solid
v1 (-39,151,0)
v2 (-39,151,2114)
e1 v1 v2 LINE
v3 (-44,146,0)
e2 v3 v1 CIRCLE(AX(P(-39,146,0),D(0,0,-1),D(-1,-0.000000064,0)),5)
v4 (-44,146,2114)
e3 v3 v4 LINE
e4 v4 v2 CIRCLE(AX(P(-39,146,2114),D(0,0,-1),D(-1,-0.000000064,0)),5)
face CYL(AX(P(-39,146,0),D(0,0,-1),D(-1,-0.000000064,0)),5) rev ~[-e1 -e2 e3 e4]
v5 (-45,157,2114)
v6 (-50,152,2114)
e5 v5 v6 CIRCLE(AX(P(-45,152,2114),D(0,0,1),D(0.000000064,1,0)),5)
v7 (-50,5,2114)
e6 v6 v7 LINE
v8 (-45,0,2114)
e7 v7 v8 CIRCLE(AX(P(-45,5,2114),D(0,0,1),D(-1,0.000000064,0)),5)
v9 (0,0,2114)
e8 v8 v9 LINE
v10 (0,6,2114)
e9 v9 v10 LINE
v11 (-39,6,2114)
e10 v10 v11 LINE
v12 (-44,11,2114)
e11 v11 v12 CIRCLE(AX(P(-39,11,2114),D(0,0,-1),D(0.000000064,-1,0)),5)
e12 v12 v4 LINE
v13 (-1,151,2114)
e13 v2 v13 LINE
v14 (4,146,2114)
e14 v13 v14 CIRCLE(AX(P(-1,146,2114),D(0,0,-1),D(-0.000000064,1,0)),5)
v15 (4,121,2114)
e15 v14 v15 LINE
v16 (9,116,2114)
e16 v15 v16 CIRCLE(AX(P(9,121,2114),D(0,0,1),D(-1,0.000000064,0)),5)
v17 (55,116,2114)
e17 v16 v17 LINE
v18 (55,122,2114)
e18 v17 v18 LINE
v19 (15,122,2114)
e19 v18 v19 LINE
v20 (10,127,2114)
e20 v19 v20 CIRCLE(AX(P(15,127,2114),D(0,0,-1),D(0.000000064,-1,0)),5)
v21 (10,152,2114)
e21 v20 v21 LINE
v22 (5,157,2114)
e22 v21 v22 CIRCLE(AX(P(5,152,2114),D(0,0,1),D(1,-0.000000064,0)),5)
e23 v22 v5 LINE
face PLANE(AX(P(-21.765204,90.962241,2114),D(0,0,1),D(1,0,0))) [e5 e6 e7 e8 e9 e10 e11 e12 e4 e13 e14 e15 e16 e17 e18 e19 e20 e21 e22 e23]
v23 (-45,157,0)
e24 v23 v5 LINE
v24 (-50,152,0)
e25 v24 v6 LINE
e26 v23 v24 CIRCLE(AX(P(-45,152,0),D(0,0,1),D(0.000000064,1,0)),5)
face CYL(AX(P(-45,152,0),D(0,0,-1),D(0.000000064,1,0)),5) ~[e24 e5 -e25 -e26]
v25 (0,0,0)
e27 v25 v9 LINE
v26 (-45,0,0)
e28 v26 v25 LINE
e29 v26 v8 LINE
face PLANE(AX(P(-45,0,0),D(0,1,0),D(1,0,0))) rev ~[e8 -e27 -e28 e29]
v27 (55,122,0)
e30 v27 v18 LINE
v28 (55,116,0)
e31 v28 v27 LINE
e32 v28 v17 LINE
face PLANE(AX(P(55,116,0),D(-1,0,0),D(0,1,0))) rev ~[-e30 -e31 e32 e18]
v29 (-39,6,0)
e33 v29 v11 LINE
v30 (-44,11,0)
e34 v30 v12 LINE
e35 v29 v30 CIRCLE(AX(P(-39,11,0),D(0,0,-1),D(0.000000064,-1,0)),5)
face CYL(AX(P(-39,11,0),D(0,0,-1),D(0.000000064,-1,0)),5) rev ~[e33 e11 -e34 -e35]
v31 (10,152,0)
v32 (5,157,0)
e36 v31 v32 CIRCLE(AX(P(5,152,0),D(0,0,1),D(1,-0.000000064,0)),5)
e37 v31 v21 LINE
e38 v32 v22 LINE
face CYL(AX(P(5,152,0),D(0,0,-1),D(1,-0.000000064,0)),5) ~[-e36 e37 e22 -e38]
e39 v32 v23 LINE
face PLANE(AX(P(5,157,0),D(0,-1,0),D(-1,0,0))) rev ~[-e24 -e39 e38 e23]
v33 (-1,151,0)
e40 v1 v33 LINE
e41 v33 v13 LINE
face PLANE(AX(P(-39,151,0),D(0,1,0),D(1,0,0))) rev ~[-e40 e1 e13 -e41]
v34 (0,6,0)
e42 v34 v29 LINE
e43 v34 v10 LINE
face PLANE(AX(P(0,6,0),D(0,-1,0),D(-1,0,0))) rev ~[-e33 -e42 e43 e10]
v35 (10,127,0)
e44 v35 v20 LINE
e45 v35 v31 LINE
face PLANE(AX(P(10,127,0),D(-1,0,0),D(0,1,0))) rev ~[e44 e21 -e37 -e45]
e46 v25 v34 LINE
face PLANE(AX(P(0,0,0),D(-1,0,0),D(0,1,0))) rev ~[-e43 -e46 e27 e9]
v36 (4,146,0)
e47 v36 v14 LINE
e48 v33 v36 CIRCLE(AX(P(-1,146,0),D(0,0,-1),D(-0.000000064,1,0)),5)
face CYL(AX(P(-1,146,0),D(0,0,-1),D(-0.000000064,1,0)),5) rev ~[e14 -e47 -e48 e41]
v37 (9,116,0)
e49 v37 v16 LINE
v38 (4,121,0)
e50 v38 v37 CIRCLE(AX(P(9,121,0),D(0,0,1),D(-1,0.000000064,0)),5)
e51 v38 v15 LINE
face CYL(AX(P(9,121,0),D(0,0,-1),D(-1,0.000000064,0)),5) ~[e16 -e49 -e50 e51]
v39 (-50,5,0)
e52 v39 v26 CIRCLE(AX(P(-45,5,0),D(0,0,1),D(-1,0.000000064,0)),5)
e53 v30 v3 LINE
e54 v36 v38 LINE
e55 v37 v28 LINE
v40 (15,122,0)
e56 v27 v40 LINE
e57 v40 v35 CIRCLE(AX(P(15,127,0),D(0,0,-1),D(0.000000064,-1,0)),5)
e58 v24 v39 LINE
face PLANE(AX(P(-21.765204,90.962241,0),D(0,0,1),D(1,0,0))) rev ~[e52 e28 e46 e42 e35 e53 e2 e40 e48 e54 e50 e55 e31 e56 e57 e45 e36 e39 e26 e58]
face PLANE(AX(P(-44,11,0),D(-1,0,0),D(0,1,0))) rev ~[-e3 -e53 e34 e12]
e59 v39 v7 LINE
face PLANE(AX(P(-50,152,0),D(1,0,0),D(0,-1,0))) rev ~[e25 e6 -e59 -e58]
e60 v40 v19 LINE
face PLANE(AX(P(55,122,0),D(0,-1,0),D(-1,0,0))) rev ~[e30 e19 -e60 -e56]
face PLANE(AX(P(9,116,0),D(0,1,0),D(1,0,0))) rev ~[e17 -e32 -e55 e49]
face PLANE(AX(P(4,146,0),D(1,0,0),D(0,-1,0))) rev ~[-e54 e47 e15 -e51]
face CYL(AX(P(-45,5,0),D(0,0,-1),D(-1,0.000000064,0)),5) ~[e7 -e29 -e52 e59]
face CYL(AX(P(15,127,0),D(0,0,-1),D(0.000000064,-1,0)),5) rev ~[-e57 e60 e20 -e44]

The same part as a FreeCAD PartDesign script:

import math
import FreeCAD as App
import Part
import Sketcher

V = App.Vector

doc = App.newDocument("Part")
body = doc.addObject("PartDesign::Body", "Body")

# Sketch on XY plane
sketch1 = body.newObject("Sketcher::SketchObject", "Sketch")
sketch1.AttachmentSupport = (doc.getObject("XY_Plane"), [""])
sketch1.MapMode = "FlatFace"
sketch1.addGeometry(Part.LineSegment(V(-45, 0, 0), V(0, 0, 0)), False)
sketch1.addGeometry(Part.LineSegment(V(0, 0, 0), V(0, 6, 0)), False)
sketch1.addGeometry(Part.LineSegment(V(0, 6, 0), V(-39, 6, 0)), False)
sketch1.addGeometry(Part.ArcOfCircle(Part.Circle(V(-39, 11, 0), V(0, 0, 1), 5), math.radians(180), math.radians(270)), False)
sketch1.addGeometry(Part.LineSegment(V(-44, 11, 0), V(-44, 146, 0)), False)
sketch1.addGeometry(Part.ArcOfCircle(Part.Circle(V(-39, 146, 0), V(0, 0, 1), 5), math.radians(90), math.radians(180)), False)
sketch1.addGeometry(Part.LineSegment(V(-39, 151, 0), V(-1, 151, 0)), False)
sketch1.addGeometry(Part.ArcOfCircle(Part.Circle(V(-1, 146, 0), V(0, 0, 1), 5), math.radians(0), math.radians(90)), False)
sketch1.addGeometry(Part.LineSegment(V(4, 146, 0), V(4, 121, 0)), False)
sketch1.addGeometry(Part.ArcOfCircle(Part.Circle(V(9, 121, 0), V(0, 0, 1), 5), math.radians(180), math.radians(270)), False)
sketch1.addGeometry(Part.LineSegment(V(9, 116, 0), V(55, 116, 0)), False)
sketch1.addGeometry(Part.LineSegment(V(55, 116, 0), V(55, 122, 0)), False)
sketch1.addGeometry(Part.LineSegment(V(55, 122, 0), V(15, 122, 0)), False)
sketch1.addGeometry(Part.ArcOfCircle(Part.Circle(V(15, 127, 0), V(0, 0, 1), 5), math.radians(180), math.radians(270)), False)
sketch1.addGeometry(Part.LineSegment(V(10, 127, 0), V(10, 152, 0)), False)
sketch1.addGeometry(Part.ArcOfCircle(Part.Circle(V(5, 152, 0), V(0, 0, 1), 5), math.radians(0), math.radians(90)), False)
sketch1.addGeometry(Part.LineSegment(V(5, 157, 0), V(-45, 157, 0)), False)
sketch1.addGeometry(Part.ArcOfCircle(Part.Circle(V(-45, 152, 0), V(0, 0, 1), 5), math.radians(90), math.radians(180)), False)
sketch1.addGeometry(Part.LineSegment(V(-50, 152, 0), V(-50, 5, 0)), False)
sketch1.addGeometry(Part.ArcOfCircle(Part.Circle(V(-45, 5, 0), V(0, 0, 1), 5), math.radians(180), math.radians(270)), False)
sketch1.addConstraint(Sketcher.Constraint("Coincident", 0, 2, 1, 1))
sketch1.addConstraint(Sketcher.Constraint("Coincident", 1, 2, 2, 1))
sketch1.addConstraint(Sketcher.Constraint("Tangent", 2, 2, 3, 2))
sketch1.addConstraint(Sketcher.Constraint("Tangent", 3, 1, 4, 1))
sketch1.addConstraint(Sketcher.Constraint("Tangent", 4, 2, 5, 2))
sketch1.addConstraint(Sketcher.Constraint("Tangent", 5, 1, 6, 1))
sketch1.addConstraint(Sketcher.Constraint("Tangent", 6, 2, 7, 2))
sketch1.addConstraint(Sketcher.Constraint("Tangent", 7, 1, 8, 1))
sketch1.addConstraint(Sketcher.Constraint("Tangent", 8, 2, 9, 1))
sketch1.addConstraint(Sketcher.Constraint("Tangent", 9, 2, 10, 1))
sketch1.addConstraint(Sketcher.Constraint("Coincident", 10, 2, 11, 1))
sketch1.addConstraint(Sketcher.Constraint("Coincident", 11, 2, 12, 1))
sketch1.addConstraint(Sketcher.Constraint("Tangent", 12, 2, 13, 2))
sketch1.addConstraint(Sketcher.Constraint("Tangent", 13, 1, 14, 1))
sketch1.addConstraint(Sketcher.Constraint("Tangent", 14, 2, 15, 1))
sketch1.addConstraint(Sketcher.Constraint("Tangent", 15, 2, 16, 1))
sketch1.addConstraint(Sketcher.Constraint("Tangent", 16, 2, 17, 1))
sketch1.addConstraint(Sketcher.Constraint("Tangent", 17, 2, 18, 1))
sketch1.addConstraint(Sketcher.Constraint("Tangent", 18, 2, 19, 1))
sketch1.addConstraint(Sketcher.Constraint("Tangent", 19, 2, 0, 1))
sketch1.addConstraint(Sketcher.Constraint("Horizontal", 0))
sketch1.addConstraint(Sketcher.Constraint("Vertical", 1))
sketch1.addConstraint(Sketcher.Constraint("Horizontal", 2))
sketch1.addConstraint(Sketcher.Constraint("Vertical", 4))
sketch1.addConstraint(Sketcher.Constraint("Horizontal", 6))
sketch1.addConstraint(Sketcher.Constraint("Vertical", 8))
sketch1.addConstraint(Sketcher.Constraint("Horizontal", 10))
sketch1.addConstraint(Sketcher.Constraint("Vertical", 11))
sketch1.addConstraint(Sketcher.Constraint("Horizontal", 12))
sketch1.addConstraint(Sketcher.Constraint("Vertical", 14))
sketch1.addConstraint(Sketcher.Constraint("Horizontal", 16))
sketch1.addConstraint(Sketcher.Constraint("Vertical", 18))
sketch1.addConstraint(Sketcher.Constraint("Coincident", 0, 2, -1, 1))
sketch1.addConstraint(Sketcher.Constraint("Equal", 3, 5))
sketch1.addConstraint(Sketcher.Constraint("Equal", 5, 7))
sketch1.addConstraint(Sketcher.Constraint("Equal", 7, 9))
sketch1.addConstraint(Sketcher.Constraint("Equal", 9, 13))
sketch1.addConstraint(Sketcher.Constraint("Equal", 13, 15))
sketch1.addConstraint(Sketcher.Constraint("Equal", 15, 17))
sketch1.addConstraint(Sketcher.Constraint("Equal", 17, 19))
sketch1.addConstraint(Sketcher.Constraint("Equal", 1, 11))
sketch1.addConstraint(Sketcher.Constraint("Equal", 8, 14))
sketch1.addConstraint(Sketcher.Constraint("Radius", 3, 5.0))
sketch1.addConstraint(Sketcher.Constraint("DistanceX", 0, 1, 0, 2, 45.0))
sketch1.addConstraint(Sketcher.Constraint("DistanceX", 2, 2, 2, 1, 39.0))
sketch1.addConstraint(Sketcher.Constraint("DistanceX", 6, 1, 6, 2, 38.0))
sketch1.addConstraint(Sketcher.Constraint("DistanceX", 10, 1, 10, 2, 46.0))
sketch1.addConstraint(Sketcher.Constraint("DistanceX", 12, 2, 12, 1, 40.0))
sketch1.addConstraint(Sketcher.Constraint("DistanceY", 1, 1, 1, 2, 6.0))
sketch1.addConstraint(Sketcher.Constraint("DistanceY", 4, 1, 4, 2, 135.0))
sketch1.addConstraint(Sketcher.Constraint("DistanceY", 8, 2, 8, 1, 25.0))
pad1 = body.newObject("PartDesign::Pad", "Pad")
pad1.Profile = sketch1
pad1.Length = 2114

doc.recompute()
